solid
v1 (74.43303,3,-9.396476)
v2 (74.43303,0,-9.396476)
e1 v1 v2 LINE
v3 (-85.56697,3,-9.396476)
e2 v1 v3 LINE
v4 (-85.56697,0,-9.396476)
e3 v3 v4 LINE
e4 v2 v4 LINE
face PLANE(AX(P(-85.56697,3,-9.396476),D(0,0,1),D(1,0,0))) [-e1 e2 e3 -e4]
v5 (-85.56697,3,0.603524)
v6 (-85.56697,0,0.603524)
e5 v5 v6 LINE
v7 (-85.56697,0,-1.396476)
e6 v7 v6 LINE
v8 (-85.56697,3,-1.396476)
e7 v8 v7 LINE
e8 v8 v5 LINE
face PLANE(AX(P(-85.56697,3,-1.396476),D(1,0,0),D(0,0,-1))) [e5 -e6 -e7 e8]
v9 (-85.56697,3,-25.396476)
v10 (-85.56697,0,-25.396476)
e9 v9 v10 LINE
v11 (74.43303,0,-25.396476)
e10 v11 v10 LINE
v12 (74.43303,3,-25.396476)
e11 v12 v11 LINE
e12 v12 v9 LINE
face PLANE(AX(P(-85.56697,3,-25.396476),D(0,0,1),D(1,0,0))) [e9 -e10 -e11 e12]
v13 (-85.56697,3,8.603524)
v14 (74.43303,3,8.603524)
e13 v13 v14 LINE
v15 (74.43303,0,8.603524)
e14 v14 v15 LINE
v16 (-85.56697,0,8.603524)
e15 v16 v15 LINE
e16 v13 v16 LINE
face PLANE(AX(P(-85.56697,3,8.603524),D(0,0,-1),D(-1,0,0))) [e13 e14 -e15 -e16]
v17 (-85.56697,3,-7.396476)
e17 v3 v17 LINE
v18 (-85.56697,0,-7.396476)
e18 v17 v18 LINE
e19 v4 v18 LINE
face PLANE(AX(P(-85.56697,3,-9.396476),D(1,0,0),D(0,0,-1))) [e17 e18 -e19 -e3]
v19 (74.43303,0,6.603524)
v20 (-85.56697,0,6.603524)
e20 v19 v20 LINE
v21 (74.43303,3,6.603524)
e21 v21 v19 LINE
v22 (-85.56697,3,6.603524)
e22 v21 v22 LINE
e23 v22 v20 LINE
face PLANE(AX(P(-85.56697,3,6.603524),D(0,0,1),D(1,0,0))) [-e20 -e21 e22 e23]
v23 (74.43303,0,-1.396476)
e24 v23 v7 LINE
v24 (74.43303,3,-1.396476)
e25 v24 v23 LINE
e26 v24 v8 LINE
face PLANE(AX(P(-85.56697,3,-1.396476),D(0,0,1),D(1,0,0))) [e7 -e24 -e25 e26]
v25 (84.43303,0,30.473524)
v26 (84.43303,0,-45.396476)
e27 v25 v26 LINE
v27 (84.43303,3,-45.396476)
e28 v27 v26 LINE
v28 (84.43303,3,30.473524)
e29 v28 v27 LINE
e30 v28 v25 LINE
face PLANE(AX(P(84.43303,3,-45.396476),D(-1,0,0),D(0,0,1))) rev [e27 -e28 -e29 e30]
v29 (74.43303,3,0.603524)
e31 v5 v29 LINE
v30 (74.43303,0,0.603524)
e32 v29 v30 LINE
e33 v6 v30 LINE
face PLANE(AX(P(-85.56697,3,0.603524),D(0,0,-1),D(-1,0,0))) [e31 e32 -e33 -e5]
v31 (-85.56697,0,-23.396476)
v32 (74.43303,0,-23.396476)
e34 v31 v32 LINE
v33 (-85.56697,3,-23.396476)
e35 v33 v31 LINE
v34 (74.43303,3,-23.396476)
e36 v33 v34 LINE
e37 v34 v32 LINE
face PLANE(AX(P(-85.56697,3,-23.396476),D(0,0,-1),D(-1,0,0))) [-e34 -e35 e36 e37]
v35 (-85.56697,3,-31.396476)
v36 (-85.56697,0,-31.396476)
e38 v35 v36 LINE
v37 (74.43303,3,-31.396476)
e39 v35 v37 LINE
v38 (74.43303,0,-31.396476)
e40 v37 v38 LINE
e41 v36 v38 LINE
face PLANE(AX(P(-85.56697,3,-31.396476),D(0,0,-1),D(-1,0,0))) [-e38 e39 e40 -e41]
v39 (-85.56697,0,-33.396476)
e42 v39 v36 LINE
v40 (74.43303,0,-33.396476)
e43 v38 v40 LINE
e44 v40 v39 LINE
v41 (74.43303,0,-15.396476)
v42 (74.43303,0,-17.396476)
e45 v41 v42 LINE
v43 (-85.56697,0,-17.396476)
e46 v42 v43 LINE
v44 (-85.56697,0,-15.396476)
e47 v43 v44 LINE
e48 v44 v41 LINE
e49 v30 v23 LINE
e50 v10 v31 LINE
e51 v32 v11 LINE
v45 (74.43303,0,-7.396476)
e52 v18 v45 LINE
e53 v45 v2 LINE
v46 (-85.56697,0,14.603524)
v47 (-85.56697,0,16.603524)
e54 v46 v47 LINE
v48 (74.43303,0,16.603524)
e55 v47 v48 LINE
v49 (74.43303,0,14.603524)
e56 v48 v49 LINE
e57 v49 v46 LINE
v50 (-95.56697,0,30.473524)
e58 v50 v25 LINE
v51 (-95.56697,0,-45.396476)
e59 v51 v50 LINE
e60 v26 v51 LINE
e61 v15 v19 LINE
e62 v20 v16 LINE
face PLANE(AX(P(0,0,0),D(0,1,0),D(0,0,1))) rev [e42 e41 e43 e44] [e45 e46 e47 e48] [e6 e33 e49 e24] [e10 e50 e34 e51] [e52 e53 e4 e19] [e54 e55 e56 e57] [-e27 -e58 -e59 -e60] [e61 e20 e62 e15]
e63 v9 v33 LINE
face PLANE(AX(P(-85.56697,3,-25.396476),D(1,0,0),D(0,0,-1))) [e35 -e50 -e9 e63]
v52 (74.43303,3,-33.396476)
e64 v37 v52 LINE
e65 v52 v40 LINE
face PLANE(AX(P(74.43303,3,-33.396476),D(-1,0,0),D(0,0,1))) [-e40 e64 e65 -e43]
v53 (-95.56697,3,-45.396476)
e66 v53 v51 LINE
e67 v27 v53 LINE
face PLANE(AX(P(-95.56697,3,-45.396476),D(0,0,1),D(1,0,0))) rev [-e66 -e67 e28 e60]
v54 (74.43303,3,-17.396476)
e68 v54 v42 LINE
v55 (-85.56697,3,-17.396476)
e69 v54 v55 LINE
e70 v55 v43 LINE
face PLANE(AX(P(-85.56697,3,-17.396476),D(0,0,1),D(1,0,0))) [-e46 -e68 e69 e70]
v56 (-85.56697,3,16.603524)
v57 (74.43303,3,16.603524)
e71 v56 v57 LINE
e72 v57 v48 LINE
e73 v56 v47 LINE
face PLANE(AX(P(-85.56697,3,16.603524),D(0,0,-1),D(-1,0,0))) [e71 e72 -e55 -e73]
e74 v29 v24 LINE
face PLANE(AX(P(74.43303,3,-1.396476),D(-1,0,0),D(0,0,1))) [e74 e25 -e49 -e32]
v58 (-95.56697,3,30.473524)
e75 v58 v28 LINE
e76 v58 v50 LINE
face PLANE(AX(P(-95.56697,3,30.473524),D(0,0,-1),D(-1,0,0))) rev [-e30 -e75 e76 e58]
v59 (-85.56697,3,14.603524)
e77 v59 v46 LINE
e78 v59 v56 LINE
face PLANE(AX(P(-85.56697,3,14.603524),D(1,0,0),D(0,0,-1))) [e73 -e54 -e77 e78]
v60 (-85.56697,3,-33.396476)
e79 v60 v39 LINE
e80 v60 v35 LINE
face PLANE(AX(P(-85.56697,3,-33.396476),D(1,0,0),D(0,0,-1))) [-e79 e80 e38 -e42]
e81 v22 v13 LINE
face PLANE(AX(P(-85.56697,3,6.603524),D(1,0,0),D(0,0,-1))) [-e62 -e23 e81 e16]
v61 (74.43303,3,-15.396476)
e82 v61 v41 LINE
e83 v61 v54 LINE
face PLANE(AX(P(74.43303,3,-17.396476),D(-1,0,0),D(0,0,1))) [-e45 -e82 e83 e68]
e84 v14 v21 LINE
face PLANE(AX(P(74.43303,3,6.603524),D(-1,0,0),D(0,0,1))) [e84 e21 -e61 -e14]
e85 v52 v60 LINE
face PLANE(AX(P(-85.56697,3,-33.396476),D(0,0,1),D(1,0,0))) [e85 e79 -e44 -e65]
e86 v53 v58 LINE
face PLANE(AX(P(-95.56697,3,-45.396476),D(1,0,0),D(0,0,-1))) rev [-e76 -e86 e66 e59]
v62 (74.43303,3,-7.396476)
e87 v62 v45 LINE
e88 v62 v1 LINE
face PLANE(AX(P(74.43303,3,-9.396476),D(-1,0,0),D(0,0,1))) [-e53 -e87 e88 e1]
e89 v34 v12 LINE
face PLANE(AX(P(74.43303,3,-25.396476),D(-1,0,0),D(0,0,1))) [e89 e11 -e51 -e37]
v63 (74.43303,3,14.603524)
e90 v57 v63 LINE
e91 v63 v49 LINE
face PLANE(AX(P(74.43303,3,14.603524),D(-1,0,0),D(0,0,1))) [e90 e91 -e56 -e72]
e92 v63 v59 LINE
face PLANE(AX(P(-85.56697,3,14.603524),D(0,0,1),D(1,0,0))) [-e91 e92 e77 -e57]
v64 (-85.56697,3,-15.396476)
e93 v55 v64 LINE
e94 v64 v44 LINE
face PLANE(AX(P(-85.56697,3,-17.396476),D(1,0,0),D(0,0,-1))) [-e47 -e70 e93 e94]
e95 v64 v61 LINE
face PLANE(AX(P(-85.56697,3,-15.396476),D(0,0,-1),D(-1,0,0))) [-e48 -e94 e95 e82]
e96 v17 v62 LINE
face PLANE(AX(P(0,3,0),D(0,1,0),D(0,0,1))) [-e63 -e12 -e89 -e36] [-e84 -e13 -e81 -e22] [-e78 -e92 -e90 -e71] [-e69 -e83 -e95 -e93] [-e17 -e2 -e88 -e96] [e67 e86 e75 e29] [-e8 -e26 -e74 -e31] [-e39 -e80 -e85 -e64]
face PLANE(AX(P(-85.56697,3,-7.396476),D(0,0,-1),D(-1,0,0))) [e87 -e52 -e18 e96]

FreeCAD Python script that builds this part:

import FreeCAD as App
import Part
import Sketcher

doc = App.newDocument("Part")
params = doc.addObject("Spreadsheet::Sheet", "Params")
for row, (alias, value) in enumerate([
    ("sketch1_width", "180 mm"),
    ("sketch1_width2", "160 mm"),
    ("sketch1_height", "2 mm"),
    ("sketch1_height2", "75.87 mm"),
    ("pad1_length", "3 mm"),
], start=1):
    params.set(f"A{row}", alias)
    params.set(f"B{row}", "=" + value)
    params.setAlias(f"B{row}", alias)

body = doc.addObject("PartDesign::Body", "Body")

# Sketch on XZ plane
sketch1 = body.newObject("Sketcher::SketchObject", "Sketch")
sketch1.AttachmentSupport = (doc.getObject("XZ_Plane"), [""])
sketch1.MapMode = "FlatFace"
sketch1.addGeometry([
    Part.LineSegment(App.Vector(-95.6, -45.4, 0), App.Vector(-95.6, 30.5, 0)),  # 0
    Part.LineSegment(App.Vector(-95.6, 30.5, 0), App.Vector(84.4, 30.5, 0)),  # 1
    Part.LineSegment(App.Vector(84.4, 30.5, 0), App.Vector(84.4, -45.4, 0)),  # 2
    Part.LineSegment(App.Vector(84.4, -45.4, 0), App.Vector(-95.6, -45.4, 0)),  # 3
    Part.LineSegment(App.Vector(74.4, 16.6, 0), App.Vector(-85.6, 16.6, 0)),  # 4
    Part.LineSegment(App.Vector(-85.6, 16.6, 0), App.Vector(-85.6, 14.6, 0)),  # 5
    Part.LineSegment(App.Vector(-85.6, 14.6, 0), App.Vector(74.4, 14.6, 0)),  # 6
    Part.LineSegment(App.Vector(74.4, 14.6, 0), App.Vector(74.4, 16.6, 0)),  # 7
    Part.LineSegment(App.Vector(74.4, 8.6, 0), App.Vector(-85.6, 8.6, 0)),  # 8
    Part.LineSegment(App.Vector(-85.6, 8.6, 0), App.Vector(-85.6, 6.6, 0)),  # 9
    Part.LineSegment(App.Vector(-85.6, 6.6, 0), App.Vector(74.4, 6.6, 0)),  # 10
    Part.LineSegment(App.Vector(74.4, 6.6, 0), App.Vector(74.4, 8.6, 0)),  # 11
    Part.LineSegment(App.Vector(74.4, 0.6, 0), App.Vector(-85.6, 0.6, 0)),  # 12
    Part.LineSegment(App.Vector(-85.6, 0.6, 0), App.Vector(-85.6, -1.4, 0)),  # 13
    Part.LineSegment(App.Vector(-85.6, -1.4, 0), App.Vector(74.4, -1.4, 0)),  # 14
    Part.LineSegment(App.Vector(74.4, -1.4, 0), App.Vector(74.4, 0.6, 0)),  # 15
    Part.LineSegment(App.Vector(74.4, -7.4, 0), App.Vector(-85.6, -7.4, 0)),  # 16
    Part.LineSegment(App.Vector(-85.6, -7.4, 0), App.Vector(-85.6, -9.4, 0)),  # 17
    Part.LineSegment(App.Vector(-85.6, -9.4, 0), App.Vector(74.4, -9.4, 0)),  # 18
    Part.LineSegment(App.Vector(74.4, -9.4, 0), App.Vector(74.4, -7.4, 0)),  # 19
    Part.LineSegment(App.Vector(74.4, -15.4, 0), App.Vector(-85.6, -15.4, 0)),  # 20
    Part.LineSegment(App.Vector(-85.6, -15.4, 0), App.Vector(-85.6, -17.4, 0)),  # 21
    Part.LineSegment(App.Vector(-85.6, -17.4, 0), App.Vector(74.4, -17.4, 0)),  # 22
    Part.LineSegment(App.Vector(74.4, -17.4, 0), App.Vector(74.4, -15.4, 0)),  # 23
    Part.LineSegment(App.Vector(74.4, -23.4, 0), App.Vector(-85.6, -23.4, 0)),  # 24
    Part.LineSegment(App.Vector(-85.6, -23.4, 0), App.Vector(-85.6, -25.4, 0)),  # 25
    Part.LineSegment(App.Vector(-85.6, -25.4, 0), App.Vector(74.4, -25.4, 0)),  # 26
    Part.LineSegment(App.Vector(74.4, -25.4, 0), App.Vector(74.4, -23.4, 0)),  # 27
    Part.LineSegment(App.Vector(74.4, -31.4, 0), App.Vector(-85.6, -31.4, 0)),  # 28
    Part.LineSegment(App.Vector(-85.6, -31.4, 0), App.Vector(-85.6, -33.4, 0)),  # 29
    Part.LineSegment(App.Vector(-85.6, -33.4, 0), App.Vector(74.4, -33.4, 0)),  # 30
    Part.LineSegment(App.Vector(74.4, -33.4, 0), App.Vector(74.4, -31.4, 0)),  # 31
], False)
sketch1.addConstraint([
    Sketcher.Constraint("Coincident", 0, 2, 1, 1),
    Sketcher.Constraint("Coincident", 1, 2, 2, 1),
    Sketcher.Constraint("Coincident", 2, 2, 3, 1),
    Sketcher.Constraint("Coincident", 3, 2, 0, 1),
    Sketcher.Constraint("Coincident", 4, 2, 5, 1),
    Sketcher.Constraint("Coincident", 5, 2, 6, 1),
    Sketcher.Constraint("Coincident", 6, 2, 7, 1),
    Sketcher.Constraint("Coincident", 7, 2, 4, 1),
    Sketcher.Constraint("Coincident", 8, 2, 9, 1),
    Sketcher.Constraint("Coincident", 9, 2, 10, 1),
    Sketcher.Constraint("Coincident", 10, 2, 11, 1),
    Sketcher.Constraint("Coincident", 11, 2, 8, 1),
    Sketcher.Constraint("Coincident", 12, 2, 13, 1),
    Sketcher.Constraint("Coincident", 13, 2, 14, 1),
    Sketcher.Constraint("Coincident", 14, 2, 15, 1),
    Sketcher.Constraint("Coincident", 15, 2, 12, 1),
    Sketcher.Constraint("Coincident", 16, 2, 17, 1),
    Sketcher.Constraint("Coincident", 17, 2, 18, 1),
    Sketcher.Constraint("Coincident", 18, 2, 19, 1),
    Sketcher.Constraint("Coincident", 19, 2, 16, 1),
    Sketcher.Constraint("Coincident", 20, 2, 21, 1),
    Sketcher.Constraint("Coincident", 21, 2, 22, 1),
    Sketcher.Constraint("Coincident", 22, 2, 23, 1),
    Sketcher.Constraint("Coincident", 23, 2, 20, 1),
    Sketcher.Constraint("Coincident", 24, 2, 25, 1),
    Sketcher.Constraint("Coincident", 25, 2, 26, 1),
    Sketcher.Constraint("Coincident", 26, 2, 27, 1),
    Sketcher.Constraint("Coincident", 27, 2, 24, 1),
    Sketcher.Constraint("Coincident", 28, 2, 29, 1),
    Sketcher.Constraint("Coincident", 29, 2, 30, 1),
    Sketcher.Constraint("Coincident", 30, 2, 31, 1),
    Sketcher.Constraint("Coincident", 31, 2, 28, 1),
    Sketcher.Constraint("Vertical", 0),
    Sketcher.Constraint("Horizontal", 1),
    Sketcher.Constraint("Vertical", 2),
    Sketcher.Constraint("Horizontal", 3),
    Sketcher.Constraint("Horizontal", 4),
    Sketcher.Constraint("Vertical", 5),
    Sketcher.Constraint("Horizontal", 6),
    Sketcher.Constraint("Vertical", 7),
    Sketcher.Constraint("Horizontal", 8),
    Sketcher.Constraint("Vertical", 9),
    Sketcher.Constraint("Horizontal", 10),
    Sketcher.Constraint("Vertical", 11),
    Sketcher.Constraint("Horizontal", 12),
    Sketcher.Constraint("Vertical", 13),
    Sketcher.Constraint("Horizontal", 14),
    Sketcher.Constraint("Vertical", 15),
    Sketcher.Constraint("Horizontal", 16),
    Sketcher.Constraint("Vertical", 17),
    Sketcher.Constraint("Horizontal", 18),
    Sketcher.Constraint("Vertical", 19),
    Sketcher.Constraint("Horizontal", 20),
    Sketcher.Constraint("Vertical", 21),
    Sketcher.Constraint("Horizontal", 22),
    Sketcher.Constraint("Vertical", 23),
    Sketcher.Constraint("Horizontal", 24),
    Sketcher.Constraint("Vertical", 25),
    Sketcher.Constraint("Horizontal", 26),
    Sketcher.Constraint("Vertical", 27),
    Sketcher.Constraint("Horizontal", 28),
    Sketcher.Constraint("Vertical", 29),
    Sketcher.Constraint("Horizontal", 30),
    Sketcher.Constraint("Vertical", 31),
    Sketcher.Constraint("Vertical", 5, 2, 8, 2),
    Sketcher.Constraint("Vertical", 7, 2, 10, 2),
    Sketcher.Constraint("Vertical", 9, 2, 12, 2),
    Sketcher.Constraint("Vertical", 11, 2, 14, 2),
    Sketcher.Constraint("Vertical", 13, 2, 16, 2),
    Sketcher.Constraint("Vertical", 15, 2, 18, 2),
    Sketcher.Constraint("Vertical", 17, 2, 20, 2),
    Sketcher.Constraint("Vertical", 19, 2, 22, 2),
    Sketcher.Constraint("Vertical", 21, 2, 24, 2),
    Sketcher.Constraint("Vertical", 23, 2, 26, 2),
    Sketcher.Constraint("Vertical", 25, 2, 28, 2),
    Sketcher.Constraint("Vertical", 27, 2, 30, 2),
    Sketcher.Constraint("Equal", 7, 9),
    Sketcher.Constraint("Equal", 11, 13),
    Sketcher.Constraint("Equal", 15, 17),
    Sketcher.Constraint("Equal", 19, 21),
    Sketcher.Constraint("Equal", 23, 25),
    Sketcher.Constraint("Equal", 27, 29),
    Sketcher.Constraint("DistanceX", 1, 1, 1, 2, 180.0),
    Sketcher.Constraint("DistanceX", 4, 2, 4, 1, 160.0),
    Sketcher.Constraint("DistanceY", 5, 2, 5, 1, 2.0),
    Sketcher.Constraint("DistanceX", 0, 2, 4, 2, 10.0),
    Sketcher.Constraint("DistanceY", 3, 2, 4, 2, 62.0),
    Sketcher.Constraint("DistanceY", 8, 2, 5, 2, 6.0),
    Sketcher.Constraint("DistanceY", 12, 2, 9, 2, 6.0),
    Sketcher.Constraint("DistanceY", 16, 2, 13, 2, 6.0),
    Sketcher.Constraint("DistanceY", 20, 2, 17, 2, 6.0),
    Sketcher.Constraint("DistanceY", 24, 2, 21, 2, 6.0),
    Sketcher.Constraint("DistanceY", 28, 2, 25, 2, 6.0),
    Sketcher.Constraint("DistanceY", 0, 1, 0, 2, 75.87),
    Sketcher.Constraint("DistanceX", 0, 2, -1, 1, 95.56697),
    Sketcher.Constraint("DistanceY", -1, 1, 0, 2, 30.473524),
])
sketch1.setExpression("Constraints[82]", "Params.sketch1_width")
sketch1.setExpression("Constraints[83]", "Params.sketch1_width2")
sketch1.setExpression("Constraints[84]", "Params.sketch1_height")
sketch1.setExpression("Constraints[93]", "Params.sketch1_height2")
pad1 = body.newObject("PartDesign::Pad", "Pad")
pad1.Profile = sketch1
pad1.setExpression("Length", "Params.pad1_length")
pad1.Reversed = True

doc.recompute()
